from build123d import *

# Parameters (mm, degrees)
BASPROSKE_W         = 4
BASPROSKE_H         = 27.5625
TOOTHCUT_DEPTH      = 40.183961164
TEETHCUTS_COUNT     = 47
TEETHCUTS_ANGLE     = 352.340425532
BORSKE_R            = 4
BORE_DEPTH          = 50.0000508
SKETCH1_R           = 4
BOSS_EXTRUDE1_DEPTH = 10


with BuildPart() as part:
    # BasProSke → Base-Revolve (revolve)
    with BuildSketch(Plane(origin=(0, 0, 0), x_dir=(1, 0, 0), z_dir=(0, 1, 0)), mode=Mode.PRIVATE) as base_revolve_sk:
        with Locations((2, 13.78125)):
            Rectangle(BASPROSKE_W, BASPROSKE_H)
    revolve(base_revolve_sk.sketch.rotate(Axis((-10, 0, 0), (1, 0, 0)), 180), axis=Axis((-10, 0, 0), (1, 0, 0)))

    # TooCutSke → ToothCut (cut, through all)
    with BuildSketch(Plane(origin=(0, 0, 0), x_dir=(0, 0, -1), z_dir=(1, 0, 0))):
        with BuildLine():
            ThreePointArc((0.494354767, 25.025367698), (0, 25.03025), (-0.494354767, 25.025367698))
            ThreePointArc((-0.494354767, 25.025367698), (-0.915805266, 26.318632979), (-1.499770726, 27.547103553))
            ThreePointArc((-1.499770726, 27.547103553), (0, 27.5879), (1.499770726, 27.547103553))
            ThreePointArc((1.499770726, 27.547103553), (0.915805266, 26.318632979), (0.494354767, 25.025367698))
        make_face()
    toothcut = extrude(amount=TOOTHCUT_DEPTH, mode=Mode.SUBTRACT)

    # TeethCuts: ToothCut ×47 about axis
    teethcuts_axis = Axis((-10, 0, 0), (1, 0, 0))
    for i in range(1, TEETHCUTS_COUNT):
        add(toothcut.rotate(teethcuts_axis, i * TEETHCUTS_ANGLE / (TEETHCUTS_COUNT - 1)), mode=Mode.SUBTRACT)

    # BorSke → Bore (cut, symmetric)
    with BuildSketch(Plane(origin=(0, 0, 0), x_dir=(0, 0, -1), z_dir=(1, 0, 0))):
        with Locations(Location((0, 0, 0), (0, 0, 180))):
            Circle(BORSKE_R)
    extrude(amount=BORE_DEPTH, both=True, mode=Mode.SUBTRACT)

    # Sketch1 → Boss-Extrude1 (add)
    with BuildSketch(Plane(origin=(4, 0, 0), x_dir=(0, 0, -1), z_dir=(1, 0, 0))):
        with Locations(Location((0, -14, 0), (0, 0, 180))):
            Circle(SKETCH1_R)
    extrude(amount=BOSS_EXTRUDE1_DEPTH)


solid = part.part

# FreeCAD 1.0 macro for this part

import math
import FreeCAD as App
import Part
import Sketcher

doc = App.newDocument("Part")
body = doc.addObject("PartDesign::Body", "Body")

sketch1 = body.newObject("Sketcher::SketchObject", "Sketch")
sketch1.AttachmentSupport = (doc.getObject("XZ_Plane"), [""])
sketch1.MapMode = "FlatFace"
sketch1.addGeometry([
    Part.LineSegment(App.Vector(0, -27.6, 0), App.Vector(0, 0, 0)),
    Part.LineSegment(App.Vector(0, 0, 0), App.Vector(4, 0, 0)),
    Part.LineSegment(App.Vector(4, 0, 0), App.Vector(4, -27.6, 0)),
    Part.LineSegment(App.Vector(4, -27.6, 0), App.Vector(0, -27.6, 0)),
], False)
sketch1.addConstraint([
    Sketcher.Constraint("Coincident", 0, 2, 1, 1),
    Sketcher.Constraint("Coincident", 1, 2, 2, 1),
    Sketcher.Constraint("Coincident", 2, 2, 3, 1),
    Sketcher.Constraint("Coincident", 3, 2, 0, 1),
    Sketcher.Constraint("Vertical", 0),
    Sketcher.Constraint("Horizontal", 1),
    Sketcher.Constraint("Vertical", 2),
    Sketcher.Constraint("Horizontal", 3),
    Sketcher.Constraint("Coincident", 0, 2, -1, 1),
    Sketcher.Constraint("DistanceX", 1, 1, 1, 2, 4.0),
    Sketcher.Constraint("DistanceY", 0, 1, 0, 2, 27.5625),
])
revolution = body.newObject("PartDesign::Revolution", "Revolution")
revolution.Profile = sketch1
revolution.ReferenceAxis = (sketch1, ["H_Axis"])
revolution.Angle = 360

sketch2 = body.newObject("Sketcher::SketchObject", "Sketch001")
sketch2.AttachmentSupport = (doc.getObject("YZ_Plane"), [""])
sketch2.MapMode = "FlatFace"
sketch2.addGeometry([
    Part.ArcOfCircle(Part.Circle(App.Vector(0, 0, 0), App.Vector(0, 0, 1), 25), math.radians(-1.13), math.radians(1.13)),
    Part.ArcOfCircle(Part.Circle(App.Vector(22.4, -10.7, 0), App.Vector(0, 0, 1), 10.6), math.radians(60.89), math.radians(75.64)),
    Part.ArcOfCircle(Part.Circle(App.Vector(0, 0, 0), App.Vector(0, 0, 1), 27.6), math.radians(-3.12), math.radians(3.12)),
    Part.ArcOfCircle(Part.Circle(App.Vector(22.4, 10.7, 0), App.Vector(0, 0, 1), 10.6), math.radians(-75.64), math.radians(-60.89)),
], False)
sketch2.addConstraint([
    Sketcher.Constraint("Coincident", 0, 1, 1, 2),
    Sketcher.Constraint("Coincident", 1, 1, 2, 1),
    Sketcher.Constraint("Coincident", 2, 2, 3, 2),
    Sketcher.Constraint("Coincident", 3, 1, 0, 2),
    Sketcher.Constraint("Coincident", 0, 3, -1, 1),
    Sketcher.Constraint("Coincident", 2, 3, -1, 1),
    Sketcher.Constraint("Equal", 1, 3),
    Sketcher.Constraint("Symmetric", 1, 3, 3, 3, -1),
    Sketcher.Constraint("Radius", 1, 10.575),
    Sketcher.Constraint("Radius", 2, 27.5879),
    Sketcher.Constraint("Radius", 0, 25.030249),
    Sketcher.Constraint("DistanceY", 0, 1, 3, 3, 11.233198),
    Sketcher.Constraint("DistanceX", -1, 1, 1, 3, 22.402188),
])
pocket1 = body.newObject("PartDesign::Pocket", "Pocket")
pocket1.Profile = sketch2
pocket1.Type = "ThroughAll"
pocket1.Reversed = True
doc.recompute()

polarpattern = body.newObject("PartDesign::PolarPattern", "PolarPattern")
polarpattern.Originals = [pocket1]
polarpattern.Axis = (doc.getObject("X_Axis"), [""])
polarpattern.Angle = 360
polarpattern.Occurrences = 47
body.Tip = polarpattern

sketch3 = body.newObject("Sketcher::SketchObject", "Sketch002")
sketch3.AttachmentSupport = (doc.getObject("YZ_Plane"), [""])
sketch3.MapMode = "FlatFace"
sketch3.addGeometry(Part.Circle(App.Vector(0, 0, 0), App.Vector(0, 0, 1), 4), False)
sketch3.addConstraint([
    Sketcher.Constraint("Coincident", 0, 3, -1, 1),
    Sketcher.Constraint("Diameter", 0, 8.0),
])
pocket2 = body.newObject("PartDesign::Pocket", "Pocket001")
pocket2.Profile = sketch3
pocket2.Length = 100.000102
pocket2.Midplane = True

sketch4 = body.newObject("Sketcher::SketchObject", "Sketch003")
sketch4.AttachmentSupport = (doc.getObject("YZ_Plane"), [""])
sketch4.MapMode = "FlatFace"
sketch4.AttachmentOffset = App.Placement(App.Vector(0, 0, 4), App.Rotation())
sketch4.addGeometry(Part.Circle(App.Vector(-14, 0, 0), App.Vector(0, 0, 1), 4), False)
sketch4.addConstraint([
    Sketcher.Constraint("PointOnObject", 0, 3, -1),
    Sketcher.Constraint("Diameter", 0, 8.0),
    Sketcher.Constraint("DistanceX", 0, 3, -1, 1, 14.0),
])
pad1 = body.newObject("PartDesign::Pad", "Pad")
pad1.Profile = sketch4
pad1.Length = 10

doc.recompute()
